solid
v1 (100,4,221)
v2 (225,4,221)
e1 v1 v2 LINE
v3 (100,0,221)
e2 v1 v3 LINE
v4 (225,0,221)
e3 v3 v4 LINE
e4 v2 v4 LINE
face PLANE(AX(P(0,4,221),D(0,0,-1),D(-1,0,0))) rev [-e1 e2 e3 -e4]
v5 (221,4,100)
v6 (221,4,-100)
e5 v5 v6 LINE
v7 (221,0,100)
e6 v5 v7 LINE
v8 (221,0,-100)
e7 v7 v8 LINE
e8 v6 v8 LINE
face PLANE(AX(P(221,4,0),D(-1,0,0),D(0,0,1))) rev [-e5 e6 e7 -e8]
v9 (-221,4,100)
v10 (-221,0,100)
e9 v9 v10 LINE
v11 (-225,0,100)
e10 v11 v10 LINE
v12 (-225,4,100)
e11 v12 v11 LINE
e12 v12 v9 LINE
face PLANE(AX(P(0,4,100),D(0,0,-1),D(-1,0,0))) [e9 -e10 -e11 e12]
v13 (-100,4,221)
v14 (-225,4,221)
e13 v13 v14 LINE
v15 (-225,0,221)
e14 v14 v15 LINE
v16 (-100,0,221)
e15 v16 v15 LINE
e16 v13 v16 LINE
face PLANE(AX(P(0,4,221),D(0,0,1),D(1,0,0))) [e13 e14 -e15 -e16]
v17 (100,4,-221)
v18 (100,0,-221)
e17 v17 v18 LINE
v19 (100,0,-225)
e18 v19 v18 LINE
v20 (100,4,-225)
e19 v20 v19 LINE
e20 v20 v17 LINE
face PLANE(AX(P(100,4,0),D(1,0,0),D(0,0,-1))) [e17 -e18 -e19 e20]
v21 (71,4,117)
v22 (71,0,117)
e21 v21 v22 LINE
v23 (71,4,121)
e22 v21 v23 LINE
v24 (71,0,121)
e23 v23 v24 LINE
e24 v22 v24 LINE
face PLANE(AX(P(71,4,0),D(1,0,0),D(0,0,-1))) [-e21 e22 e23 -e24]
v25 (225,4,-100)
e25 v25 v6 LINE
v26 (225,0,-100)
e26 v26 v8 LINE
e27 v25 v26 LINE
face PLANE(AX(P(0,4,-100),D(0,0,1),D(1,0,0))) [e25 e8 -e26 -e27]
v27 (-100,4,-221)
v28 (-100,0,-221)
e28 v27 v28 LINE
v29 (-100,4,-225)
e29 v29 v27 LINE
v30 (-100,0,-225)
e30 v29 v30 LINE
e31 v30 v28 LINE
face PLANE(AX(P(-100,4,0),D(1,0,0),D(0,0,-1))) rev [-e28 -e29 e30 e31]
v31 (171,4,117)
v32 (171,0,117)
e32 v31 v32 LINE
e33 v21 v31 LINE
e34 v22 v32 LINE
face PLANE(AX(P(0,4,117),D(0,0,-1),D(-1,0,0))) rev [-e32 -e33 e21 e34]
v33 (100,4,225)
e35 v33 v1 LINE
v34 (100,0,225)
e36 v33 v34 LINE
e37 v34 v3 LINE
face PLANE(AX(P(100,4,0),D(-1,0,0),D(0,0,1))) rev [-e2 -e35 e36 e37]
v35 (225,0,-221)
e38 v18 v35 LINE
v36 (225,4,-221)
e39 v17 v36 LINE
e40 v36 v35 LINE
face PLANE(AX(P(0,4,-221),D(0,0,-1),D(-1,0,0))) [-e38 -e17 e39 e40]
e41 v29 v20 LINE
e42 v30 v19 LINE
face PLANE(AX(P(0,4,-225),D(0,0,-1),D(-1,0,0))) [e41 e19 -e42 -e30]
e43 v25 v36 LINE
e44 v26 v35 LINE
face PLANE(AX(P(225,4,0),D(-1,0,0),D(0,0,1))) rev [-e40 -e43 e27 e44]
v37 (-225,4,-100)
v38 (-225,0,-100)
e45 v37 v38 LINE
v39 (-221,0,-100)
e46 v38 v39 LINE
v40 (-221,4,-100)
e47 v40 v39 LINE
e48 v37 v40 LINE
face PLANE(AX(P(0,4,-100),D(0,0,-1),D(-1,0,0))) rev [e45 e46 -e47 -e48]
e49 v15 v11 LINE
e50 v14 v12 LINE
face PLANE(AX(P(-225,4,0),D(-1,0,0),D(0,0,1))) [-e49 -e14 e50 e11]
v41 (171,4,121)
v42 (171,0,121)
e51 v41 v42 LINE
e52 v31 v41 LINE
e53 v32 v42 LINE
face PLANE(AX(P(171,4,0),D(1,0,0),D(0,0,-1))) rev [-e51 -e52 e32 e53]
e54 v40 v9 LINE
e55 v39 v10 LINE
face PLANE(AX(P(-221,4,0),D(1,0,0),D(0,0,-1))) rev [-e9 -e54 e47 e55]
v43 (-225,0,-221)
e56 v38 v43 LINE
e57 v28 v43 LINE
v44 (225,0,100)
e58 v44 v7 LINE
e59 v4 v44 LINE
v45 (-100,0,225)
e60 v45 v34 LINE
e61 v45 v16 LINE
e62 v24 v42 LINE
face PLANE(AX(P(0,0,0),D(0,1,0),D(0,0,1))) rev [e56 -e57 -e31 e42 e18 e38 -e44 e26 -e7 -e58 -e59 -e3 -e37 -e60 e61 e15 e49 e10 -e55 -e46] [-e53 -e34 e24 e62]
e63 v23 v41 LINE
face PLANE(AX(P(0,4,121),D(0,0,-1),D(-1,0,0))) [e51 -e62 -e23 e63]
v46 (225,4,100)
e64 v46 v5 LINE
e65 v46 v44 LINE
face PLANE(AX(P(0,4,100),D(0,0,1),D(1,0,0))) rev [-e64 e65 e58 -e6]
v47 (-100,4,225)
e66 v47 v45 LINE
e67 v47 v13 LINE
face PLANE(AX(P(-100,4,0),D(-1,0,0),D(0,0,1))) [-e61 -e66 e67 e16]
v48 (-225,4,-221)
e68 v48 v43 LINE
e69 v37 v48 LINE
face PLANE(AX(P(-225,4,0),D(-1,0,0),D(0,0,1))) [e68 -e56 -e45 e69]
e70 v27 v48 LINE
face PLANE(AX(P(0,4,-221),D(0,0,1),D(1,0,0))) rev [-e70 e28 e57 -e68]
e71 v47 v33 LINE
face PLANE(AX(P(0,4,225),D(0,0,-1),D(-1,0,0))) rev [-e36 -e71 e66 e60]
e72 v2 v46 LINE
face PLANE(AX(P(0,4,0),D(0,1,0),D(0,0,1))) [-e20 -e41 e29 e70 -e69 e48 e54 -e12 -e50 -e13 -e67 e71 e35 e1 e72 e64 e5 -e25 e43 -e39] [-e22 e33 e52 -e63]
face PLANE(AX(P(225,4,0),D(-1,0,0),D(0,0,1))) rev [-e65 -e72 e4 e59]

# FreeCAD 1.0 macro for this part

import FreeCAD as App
import Part
import Sketcher
from FreeCAD import Vector
Q = App.Units.Quantity


def add_polygon(sketch, points):
    """Adds a closed chain of lines whose ends are joined by coincident constraints."""
    first, n = sketch.GeometryCount, len(points)
    for a, b in zip(points, points[1:] + points[:1]):
        sketch.addGeometry(Part.LineSegment(App.Vector(*a, 0), App.Vector(*b, 0)), False)
    for i in range(n):
        sketch.addConstraint(Sketcher.Constraint("Coincident", first + i, 2, first + (i + 1) % n, 1))

doc = App.newDocument("Part")
body = doc.addObject("PartDesign::Body", "Body")

# Sketch on XZ plane
sketch1 = doc.addObject("Sketcher::SketchObject", "Sketch")
body.addObject(sketch1)
sketch1.AttachmentSupport = (doc.XZ_Plane, [""])
sketch1.MapMode = "FlatFace"
add_polygon(sketch1, [(-225, 221), (-100, 221), (-100, 225), (100, 225), (100, 221), (225, 221), (225, 100), (221, 100), (221, -100), (225, -100), (225, -221), (100, -221), (100, -225), (-100, -225), (-100, -221), (-225, -221), (-225, -100), (-221, -100), (-221, 100), (-225, 100)])  # lines 0-19
add_polygon(sketch1, [(71, 121), (71, 117), (171, 117), (171, 121)])  # lines 20-23
sketch1.addConstraint([
    Sketcher.Constraint("Horizontal", 0),
    Sketcher.Constraint("Vertical", 1),
    Sketcher.Constraint("Horizontal", 2),
    Sketcher.Constraint("Vertical", 3),
    Sketcher.Constraint("Horizontal", 4),
    Sketcher.Constraint("Vertical", 5),
    Sketcher.Constraint("Horizontal", 6),
    Sketcher.Constraint("Vertical", 7),
    Sketcher.Constraint("Horizontal", 8),
    Sketcher.Constraint("Vertical", 9),
    Sketcher.Constraint("Horizontal", 10),
    Sketcher.Constraint("Vertical", 11),
    Sketcher.Constraint("Horizontal", 12),
    Sketcher.Constraint("Vertical", 13),
    Sketcher.Constraint("Horizontal", 14),
    Sketcher.Constraint("Vertical", 15),
    Sketcher.Constraint("Horizontal", 16),
    Sketcher.Constraint("Vertical", 17),
    Sketcher.Constraint("Horizontal", 18),
    Sketcher.Constraint("Vertical", 19),
    Sketcher.Constraint("Vertical", 20),
    Sketcher.Constraint("Horizontal", 21),
    Sketcher.Constraint("Vertical", 22),
    Sketcher.Constraint("Horizontal", 23),
    Sketcher.Constraint("Symmetric", 0, 2, 10, 2, -1, 1),
    Sketcher.Constraint("Symmetric", 2, 2, 12, 2, -1, 1),
    Sketcher.Constraint("Symmetric", 4, 2, 14, 2, -1, 1),
    Sketcher.Constraint("Symmetric", 6, 2, 16, 2, -1, 1),
    Sketcher.Constraint("Symmetric", 8, 2, 18, 2, -1, 1),
    Sketcher.Constraint("Symmetric", 0, 2, 3, 2, -2),
    Sketcher.Constraint("Symmetric", 8, 2, 15, 2, -2),
    Sketcher.Constraint("Equal", 18, 1),
    Sketcher.Constraint("Equal", 12, 7),
    Sketcher.Constraint("Equal", 13, 20),
    Sketcher.Constraint("DistanceX", 0, 1, 0, 2, Q("125 mm")),
    Sketcher.Constraint("DistanceX", 2, 1, 2, 2, Q("200 mm")),
    Sketcher.Constraint("DistanceX", 6, 2, 6, 1, Q("4 mm")),
    Sketcher.Constraint("DistanceX", 21, 1, 21, 2, Q("100 mm")),
    Sketcher.Constraint("DistanceY", 5, 2, 5, 1, Q("121 mm")),
    Sketcher.Constraint("DistanceX", -1, 1, 20, 2, Q("71 mm")),
    Sketcher.Constraint("DistanceY", -1, 1, 20, 2, Q("117 mm")),
])
pad1 = doc.addObject("PartDesign::Pad", "Pad")
body.addObject(pad1)
pad1.Profile = sketch1
pad1.Length = 4
pad1.Reversed = True

doc.recompute()
